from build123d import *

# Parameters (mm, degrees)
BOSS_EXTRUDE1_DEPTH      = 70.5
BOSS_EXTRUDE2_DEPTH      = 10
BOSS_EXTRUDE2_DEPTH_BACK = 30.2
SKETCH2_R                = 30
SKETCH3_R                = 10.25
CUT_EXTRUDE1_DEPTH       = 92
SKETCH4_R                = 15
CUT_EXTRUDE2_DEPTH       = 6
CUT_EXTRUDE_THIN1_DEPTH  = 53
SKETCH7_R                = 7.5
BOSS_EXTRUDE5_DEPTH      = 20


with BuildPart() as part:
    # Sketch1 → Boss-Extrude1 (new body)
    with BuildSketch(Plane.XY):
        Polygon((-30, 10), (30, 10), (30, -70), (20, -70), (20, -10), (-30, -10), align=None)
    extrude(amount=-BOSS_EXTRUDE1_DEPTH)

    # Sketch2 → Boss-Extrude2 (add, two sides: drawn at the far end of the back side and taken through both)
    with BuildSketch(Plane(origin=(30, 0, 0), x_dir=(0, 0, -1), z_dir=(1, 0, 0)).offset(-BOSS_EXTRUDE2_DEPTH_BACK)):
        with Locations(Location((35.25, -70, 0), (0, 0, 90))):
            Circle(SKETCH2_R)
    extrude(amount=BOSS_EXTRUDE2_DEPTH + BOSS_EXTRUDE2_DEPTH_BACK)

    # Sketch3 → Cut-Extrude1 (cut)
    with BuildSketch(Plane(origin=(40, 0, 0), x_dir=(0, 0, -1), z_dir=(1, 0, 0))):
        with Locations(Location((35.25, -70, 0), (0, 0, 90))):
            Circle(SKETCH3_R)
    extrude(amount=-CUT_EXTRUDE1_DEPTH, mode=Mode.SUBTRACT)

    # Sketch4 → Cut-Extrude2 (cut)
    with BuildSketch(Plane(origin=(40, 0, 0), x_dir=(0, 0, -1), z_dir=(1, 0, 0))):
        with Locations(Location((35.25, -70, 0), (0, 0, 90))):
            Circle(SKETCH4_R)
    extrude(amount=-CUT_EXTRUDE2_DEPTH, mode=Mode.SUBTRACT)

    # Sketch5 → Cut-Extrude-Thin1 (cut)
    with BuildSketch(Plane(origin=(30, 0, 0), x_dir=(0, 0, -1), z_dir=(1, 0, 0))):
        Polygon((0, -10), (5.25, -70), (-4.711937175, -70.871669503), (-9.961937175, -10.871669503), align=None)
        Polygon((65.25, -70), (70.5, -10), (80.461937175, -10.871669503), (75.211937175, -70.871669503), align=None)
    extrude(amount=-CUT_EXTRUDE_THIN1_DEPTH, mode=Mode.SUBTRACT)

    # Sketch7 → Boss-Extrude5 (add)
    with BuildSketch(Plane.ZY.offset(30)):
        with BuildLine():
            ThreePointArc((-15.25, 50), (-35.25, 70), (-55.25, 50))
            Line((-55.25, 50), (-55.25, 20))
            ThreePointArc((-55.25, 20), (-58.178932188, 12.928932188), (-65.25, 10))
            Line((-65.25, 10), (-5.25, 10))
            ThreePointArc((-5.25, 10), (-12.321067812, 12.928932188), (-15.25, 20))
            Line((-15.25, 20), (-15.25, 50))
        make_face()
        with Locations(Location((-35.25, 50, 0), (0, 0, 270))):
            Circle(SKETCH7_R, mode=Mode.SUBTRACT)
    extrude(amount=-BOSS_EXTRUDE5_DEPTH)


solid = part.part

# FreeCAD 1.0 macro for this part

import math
import FreeCAD as App
import Part
import Sketcher

V = App.Vector
Q = App.Units.Quantity

doc = App.newDocument("Part")
body = doc.addObject("PartDesign::Body", "Body")

# Sketch on XY plane
sketch1 = body.newObject("Sketcher::SketchObject", "Sketch")
sketch1.AttachmentSupport = (doc.getObject("XY_Plane"), [""])
sketch1.MapMode = "FlatFace"
sketch1.addGeometry([
    Part.LineSegment(V(30, 10, 0), V(-30, 10, 0)),  # 0
    Part.LineSegment(V(-30, 10, 0), V(-30, -10, 0)),  # 1
    Part.LineSegment(V(-30, -10, 0), V(20, -10, 0)),  # 2
    Part.LineSegment(V(20, -10, 0), V(20, -70, 0)),  # 3
    Part.LineSegment(V(20, -70, 0), V(30, -70, 0)),  # 4
    Part.LineSegment(V(30, -70, 0), V(30, 10, 0)),  # 5
], False)
sketch1.addConstraint([
    Sketcher.Constraint("Coincident", 0, 2, 1, 1),
    Sketcher.Constraint("Coincident", 1, 2, 2, 1),
    Sketcher.Constraint("Coincident", 2, 2, 3, 1),
    Sketcher.Constraint("Coincident", 3, 2, 4, 1),
    Sketcher.Constraint("Coincident", 4, 2, 5, 1),
    Sketcher.Constraint("Coincident", 5, 2, 0, 1),
    Sketcher.Constraint("Horizontal", 0),
    Sketcher.Constraint("Vertical", 1),
    Sketcher.Constraint("Horizontal", 2),
    Sketcher.Constraint("Vertical", 3),
    Sketcher.Constraint("Horizontal", 4),
    Sketcher.Constraint("Vertical", 5),
    Sketcher.Constraint("Symmetric", 1, 2, 5, 2, -1, 1),
    Sketcher.Constraint("Equal", 0, 3),
    Sketcher.Constraint("DistanceX", 0, 2, 0, 1, Q("60 mm")),
    Sketcher.Constraint("DistanceX", 2, 1, 2, 2, Q("50 mm")),
    Sketcher.Constraint("DistanceY", 1, 2, 1, 1, Q("20 mm")),
])
pad1 = body.newObject("PartDesign::Pad", "Pad")
pad1.Profile = sketch1
pad1.Length = 70.5
pad1.Reversed = True

# Sketch on YZ plane
sketch2 = body.newObject("Sketcher::SketchObject", "Sketch001")
sketch2.AttachmentSupport = (doc.getObject("YZ_Plane"), [""])
sketch2.MapMode = "FlatFace"
sketch2.AttachmentOffset = App.Placement(V(0, 0, 30), App.Rotation())
sketch2.addGeometry(Part.Circle(V(-70, -35, 0), V(0, 0, 1), 30), False)
sketch2.addConstraint([
    Sketcher.Constraint("Diameter", 0, Q("60 mm")),
    Sketcher.Constraint("DistanceX", 0, 3, -1, 1, Q("70 mm")),
    Sketcher.Constraint("DistanceY", 0, 3, -1, 1, Q("35.25 mm")),
])
pad2 = body.newObject("PartDesign::Pad", "Pad001")
pad2.Profile = sketch2
pad2.Type = "TwoLengths"
pad2.Length = 10
pad2.Length2 = 30.2

# Sketch on YZ plane
sketch3 = body.newObject("Sketcher::SketchObject", "Sketch002")
sketch3.AttachmentSupport = (doc.getObject("YZ_Plane"), [""])
sketch3.MapMode = "FlatFace"
sketch3.AttachmentOffset = App.Placement(V(0, 0, 40), App.Rotation())
sketch3.addGeometry(Part.Circle(V(-70, -35, 0), V(0, 0, 1), 10), False)
sketch3.addConstraint([
    Sketcher.Constraint("Diameter", 0, Q("20.5 mm")),
    Sketcher.Constraint("DistanceX", 0, 3, -1, 1, Q("70 mm")),
    Sketcher.Constraint("DistanceY", 0, 3, -1, 1, Q("35.25 mm")),
])
pocket1 = body.newObject("PartDesign::Pocket", "Pocket")
pocket1.Profile = sketch3
pocket1.Length = 92

# Sketch on YZ plane
sketch4 = body.newObject("Sketcher::SketchObject", "Sketch003")
sketch4.AttachmentSupport = (doc.getObject("YZ_Plane"), [""])
sketch4.MapMode = "FlatFace"
sketch4.AttachmentOffset = App.Placement(V(0, 0, 40), App.Rotation())
sketch4.addGeometry(Part.Circle(V(-70, -35, 0), V(0, 0, 1), 15), False)
sketch4.addConstraint([
    Sketcher.Constraint("Diameter", 0, Q("30 mm")),
    Sketcher.Constraint("DistanceX", 0, 3, -1, 1, Q("70 mm")),
    Sketcher.Constraint("DistanceY", 0, 3, -1, 1, Q("35.25 mm")),
])
pocket2 = body.newObject("PartDesign::Pocket", "Pocket001")
pocket2.Profile = sketch4
pocket2.Length = 6

# Sketch on YZ plane
sketch5 = body.newObject("Sketcher::SketchObject", "Sketch004")
sketch5.AttachmentSupport = (doc.getObject("YZ_Plane"), [""])
sketch5.MapMode = "FlatFace"
sketch5.AttachmentOffset = App.Placement(V(0, 0, 30), App.Rotation())
sketch5.addGeometry([
    Part.LineSegment(V(-70, -5, 0), V(-10, 0, 0)),  # 0
    Part.LineSegment(V(-10, 0, 0), V(-11, 10, 0)),  # 1
    Part.LineSegment(V(-11, 10, 0), V(-71, 5, 0)),  # 2
    Part.LineSegment(V(-71, 5, 0), V(-70, -5, 0)),  # 3
    Part.LineSegment(V(-10, -70, 0), V(-70, -65, 0)),  # 4
    Part.LineSegment(V(-70, -65, 0), V(-71, -75, 0)),  # 5
    Part.LineSegment(V(-71, -75, 0), V(-11, -80, 0)),  # 6
    Part.LineSegment(V(-11, -80, 0), V(-10, -70, 0)),  # 7
], False)
sketch5.addConstraint([
    Sketcher.Constraint("Coincident", 0, 2, 1, 1),
    Sketcher.Constraint("Coincident", 1, 2, 2, 1),
    Sketcher.Constraint("Coincident", 2, 2, 3, 1),
    Sketcher.Constraint("Coincident", 3, 2, 0, 1),
    Sketcher.Constraint("Coincident", 4, 2, 5, 1),
    Sketcher.Constraint("Coincident", 5, 2, 6, 1),
    Sketcher.Constraint("Coincident", 6, 2, 7, 1),
    Sketcher.Constraint("Coincident", 7, 2, 4, 1),
    Sketcher.Constraint("PointOnObject", 0, 2, -1),
    Sketcher.Constraint("Perpendicular", 0, 1),
    Sketcher.Constraint("Perpendicular", 1, 2),
    Sketcher.Constraint("Perpendicular", 2, 3),
    Sketcher.Constraint("Perpendicular", 4, 5),
    Sketcher.Constraint("Perpendicular", 5, 6),
    Sketcher.Constraint("Perpendicular", 6, 7),
    Sketcher.Constraint("Vertical", 3, 2, 4, 2),
    Sketcher.Constraint("Vertical", 2, 2, 5, 2),
    Sketcher.Constraint("Vertical", 1, 2, 6, 2),
    Sketcher.Constraint("Equal", 2, 4),
    Sketcher.Constraint("Distance", 1, Q("10 mm")),
    Sketcher.Constraint("DistanceX", 0, 2, -1, 1, Q("10 mm")),
    Sketcher.Constraint("DistanceX", 3, 2, -1, 1, Q("70 mm")),
    Sketcher.Constraint("DistanceY", 4, 2, 3, 2, Q("60 mm")),
    Sketcher.Constraint("DistanceY", 7, 2, -1, 1, Q("70.5 mm")),
])
pocket3 = body.newObject("PartDesign::Pocket", "Pocket002")
pocket3.Profile = sketch5
pocket3.Length = 53

# Sketch on YZ plane
sketch6 = body.newObject("Sketcher::SketchObject", "Sketch005")
sketch6.AttachmentSupport = (doc.getObject("YZ_Plane"), [""])
sketch6.MapMode = "FlatFace"
sketch6.AttachmentOffset = App.Placement(V(0, 0, -30), App.Rotation())
sketch6.addGeometry([
    Part.ArcOfCircle(Part.Circle(V(50, -35, 0), V(0, 0, 1), 20), math.radians(-90), math.radians(90)),  # 0
    Part.LineSegment(V(50, -55, 0), V(20, -55, 0)),  # 1
    Part.ArcOfCircle(Part.Circle(V(20, -65, 0), V(0, 0, 1), 10), math.radians(90), math.radians(180)),  # 2
    Part.LineSegment(V(10, -65, 0), V(10, -5, 0)),  # 3
    Part.ArcOfCircle(Part.Circle(V(20, -5, 0), V(0, 0, 1), 10), math.radians(180), math.radians(270)),  # 4
    Part.LineSegment(V(20, -15, 0), V(50, -15, 0)),  # 5
    Part.Circle(V(50, -35, 0), V(0, 0, 1), 8),  # 6
], False)
sketch6.addConstraint([
    Sketcher.Constraint("Tangent", 0, 1, 1, 1),
    Sketcher.Constraint("Tangent", 1, 2, 2, 1),
    Sketcher.Constraint("Tangent", 2, 2, 3, 1),
    Sketcher.Constraint("Tangent", 3, 2, 4, 1),
    Sketcher.Constraint("Tangent", 4, 2, 5, 1),
    Sketcher.Constraint("Tangent", 5, 2, 0, 2),
    Sketcher.Constraint("Horizontal", 1),
    Sketcher.Constraint("Vertical", 3),
    Sketcher.Constraint("Horizontal", 5),
    Sketcher.Constraint("Coincident", 6, 3, 0, 3),
    Sketcher.Constraint("Equal", 2, 4),
    Sketcher.Constraint("Diameter", 6, Q("15 mm")),
    Sketcher.Constraint("Radius", 0, Q("20 mm")),
    Sketcher.Constraint("Radius", 2, Q("10 mm")),
    Sketcher.Constraint("DistanceX", 1, 2, 1, 1, Q("30 mm")),
    Sketcher.Constraint("DistanceX", -1, 1, 0, 3, Q("50 mm")),
    Sketcher.Constraint("DistanceY", 0, 3, -1, 1, Q("35.25 mm")),
])
pad3 = body.newObject("PartDesign::Pad", "Pad002")
pad3.Profile = sketch6
pad3.Length = 20

doc.recompute()
